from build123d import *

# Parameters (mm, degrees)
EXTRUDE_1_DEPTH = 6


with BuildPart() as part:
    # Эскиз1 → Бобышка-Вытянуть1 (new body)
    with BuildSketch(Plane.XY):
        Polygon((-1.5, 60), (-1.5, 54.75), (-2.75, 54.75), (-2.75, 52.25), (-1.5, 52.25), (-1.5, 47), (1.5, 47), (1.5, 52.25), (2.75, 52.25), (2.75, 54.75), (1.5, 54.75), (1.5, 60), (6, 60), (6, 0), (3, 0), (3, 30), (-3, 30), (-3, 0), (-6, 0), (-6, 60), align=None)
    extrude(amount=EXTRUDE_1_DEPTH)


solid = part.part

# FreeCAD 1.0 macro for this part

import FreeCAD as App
import Part
import Sketcher

V = App.Vector

doc = App.newDocument("Part")
body = doc.addObject("PartDesign::Body", "Body")

sketch1 = body.newObject("Sketcher::SketchObject", "Sketch")
sketch1.AttachmentSupport = (doc.getObject("XY_Plane"), [""])
sketch1.MapMode = "FlatFace"
sketch1.addGeometry([
    Part.LineSegment(V(-1.5, 54.8, 0), V(-1.5, 60, 0)),
    Part.LineSegment(V(-1.5, 60, 0), V(-6, 60, 0)),
    Part.LineSegment(V(-6, 60, 0), V(-6, 0, 0)),
    Part.LineSegment(V(-6, 0, 0), V(-3, 0, 0)),
    Part.LineSegment(V(-3, 0, 0), V(-3, 30, 0)),
    Part.LineSegment(V(-3, 30, 0), V(3, 30, 0)),
    Part.LineSegment(V(3, 30, 0), V(3, 0, 0)),
    Part.LineSegment(V(3, 0, 0), V(6, 0, 0)),
    Part.LineSegment(V(6, 0, 0), V(6, 60, 0)),
    Part.LineSegment(V(6, 60, 0), V(1.5, 60, 0)),
    Part.LineSegment(V(1.5, 60, 0), V(1.5, 54.8, 0)),
    Part.LineSegment(V(1.5, 54.8, 0), V(2.8, 54.8, 0)),
    Part.LineSegment(V(2.8, 54.8, 0), V(2.8, 52.2, 0)),
    Part.LineSegment(V(2.8, 52.2, 0), V(1.5, 52.2, 0)),
    Part.LineSegment(V(1.5, 52.2, 0), V(1.5, 47, 0)),
    Part.LineSegment(V(1.5, 47, 0), V(-1.5, 47, 0)),
    Part.LineSegment(V(-1.5, 47, 0), V(-1.5, 52.2, 0)),
    Part.LineSegment(V(-1.5, 52.2, 0), V(-2.8, 52.2, 0)),
    Part.LineSegment(V(-2.8, 52.2, 0), V(-2.8, 54.8, 0)),
    Part.LineSegment(V(-2.8, 54.8, 0), V(-1.5, 54.8, 0)),
], False)
sketch1.addConstraint([
    Sketcher.Constraint("Coincident", 0, 2, 1, 1),
    Sketcher.Constraint("Coincident", 1, 2, 2, 1),
    Sketcher.Constraint("Coincident", 2, 2, 3, 1),
    Sketcher.Constraint("Coincident", 3, 2, 4, 1),
    Sketcher.Constraint("Coincident", 4, 2, 5, 1),
    Sketcher.Constraint("Coincident", 5, 2, 6, 1),
    Sketcher.Constraint("Coincident", 6, 2, 7, 1),
    Sketcher.Constraint("Coincident", 7, 2, 8, 1),
    Sketcher.Constraint("Coincident", 8, 2, 9, 1),
    Sketcher.Constraint("Coincident", 9, 2, 10, 1),
    Sketcher.Constraint("Coincident", 10, 2, 11, 1),
    Sketcher.Constraint("Coincident", 11, 2, 12, 1),
    Sketcher.Constraint("Coincident", 12, 2, 13, 1),
    Sketcher.Constraint("Coincident", 13, 2, 14, 1),
    Sketcher.Constraint("Coincident", 14, 2, 15, 1),
    Sketcher.Constraint("Coincident", 15, 2, 16, 1),
    Sketcher.Constraint("Coincident", 16, 2, 17, 1),
    Sketcher.Constraint("Coincident", 17, 2, 18, 1),
    Sketcher.Constraint("Coincident", 18, 2, 19, 1),
    Sketcher.Constraint("Coincident", 19, 2, 0, 1),
    Sketcher.Constraint("Vertical", 0),
    Sketcher.Constraint("Horizontal", 1),
    Sketcher.Constraint("Vertical", 2),
    Sketcher.Constraint("Horizontal", 3),
    Sketcher.Constraint("Vertical", 4),
    Sketcher.Constraint("Horizontal", 5),
    Sketcher.Constraint("Vertical", 6),
    Sketcher.Constraint("Horizontal", 7),
    Sketcher.Constraint("Vertical", 8),
    Sketcher.Constraint("Horizontal", 9),
    Sketcher.Constraint("Vertical", 10),
    Sketcher.Constraint("Horizontal", 11),
    Sketcher.Constraint("Vertical", 12),
    Sketcher.Constraint("Horizontal", 13),
    Sketcher.Constraint("Vertical", 14),
    Sketcher.Constraint("Horizontal", 15),
    Sketcher.Constraint("Vertical", 16),
    Sketcher.Constraint("Horizontal", 17),
    Sketcher.Constraint("Vertical", 18),
    Sketcher.Constraint("Horizontal", 19),
    Sketcher.Constraint("Symmetric", 3, 2, 6, 2, -1, 1),
    Sketcher.Constraint("Symmetric", 2, 2, 7, 2, -2),
    Sketcher.Constraint("Symmetric", 0, 2, 9, 2, -2),
    Sketcher.Constraint("Symmetric", 13, 2, 16, 2, -2),
    Sketcher.Constraint("Symmetric", 11, 2, 18, 2, -2),
    Sketcher.Constraint("Vertical", 10, 2, 13, 2),
    Sketcher.Constraint("Equal", 7, 15),
    Sketcher.Constraint("Equal", 10, 14),
    Sketcher.Constraint("DistanceX", 3, 1, 3, 2, 3.0),
    Sketcher.Constraint("DistanceX", 5, 1, 5, 2, 6.0),
    Sketcher.Constraint("DistanceY", 2, 2, 2, 1, 60.0),
    Sketcher.Constraint("DistanceY", 4, 1, 4, 2, 30.0),
    Sketcher.Constraint("DistanceY", 12, 2, 12, 1, 2.5),
    Sketcher.Constraint("DistanceY", -1, 1, 14, 2, 47.0),
    Sketcher.Constraint("DistanceX", 11, 1, 11, 2, 1.25),
])
pad1 = body.newObject("PartDesign::Pad", "Pad")
pad1.Profile = sketch1
pad1.Length = 6

doc.recompute()
